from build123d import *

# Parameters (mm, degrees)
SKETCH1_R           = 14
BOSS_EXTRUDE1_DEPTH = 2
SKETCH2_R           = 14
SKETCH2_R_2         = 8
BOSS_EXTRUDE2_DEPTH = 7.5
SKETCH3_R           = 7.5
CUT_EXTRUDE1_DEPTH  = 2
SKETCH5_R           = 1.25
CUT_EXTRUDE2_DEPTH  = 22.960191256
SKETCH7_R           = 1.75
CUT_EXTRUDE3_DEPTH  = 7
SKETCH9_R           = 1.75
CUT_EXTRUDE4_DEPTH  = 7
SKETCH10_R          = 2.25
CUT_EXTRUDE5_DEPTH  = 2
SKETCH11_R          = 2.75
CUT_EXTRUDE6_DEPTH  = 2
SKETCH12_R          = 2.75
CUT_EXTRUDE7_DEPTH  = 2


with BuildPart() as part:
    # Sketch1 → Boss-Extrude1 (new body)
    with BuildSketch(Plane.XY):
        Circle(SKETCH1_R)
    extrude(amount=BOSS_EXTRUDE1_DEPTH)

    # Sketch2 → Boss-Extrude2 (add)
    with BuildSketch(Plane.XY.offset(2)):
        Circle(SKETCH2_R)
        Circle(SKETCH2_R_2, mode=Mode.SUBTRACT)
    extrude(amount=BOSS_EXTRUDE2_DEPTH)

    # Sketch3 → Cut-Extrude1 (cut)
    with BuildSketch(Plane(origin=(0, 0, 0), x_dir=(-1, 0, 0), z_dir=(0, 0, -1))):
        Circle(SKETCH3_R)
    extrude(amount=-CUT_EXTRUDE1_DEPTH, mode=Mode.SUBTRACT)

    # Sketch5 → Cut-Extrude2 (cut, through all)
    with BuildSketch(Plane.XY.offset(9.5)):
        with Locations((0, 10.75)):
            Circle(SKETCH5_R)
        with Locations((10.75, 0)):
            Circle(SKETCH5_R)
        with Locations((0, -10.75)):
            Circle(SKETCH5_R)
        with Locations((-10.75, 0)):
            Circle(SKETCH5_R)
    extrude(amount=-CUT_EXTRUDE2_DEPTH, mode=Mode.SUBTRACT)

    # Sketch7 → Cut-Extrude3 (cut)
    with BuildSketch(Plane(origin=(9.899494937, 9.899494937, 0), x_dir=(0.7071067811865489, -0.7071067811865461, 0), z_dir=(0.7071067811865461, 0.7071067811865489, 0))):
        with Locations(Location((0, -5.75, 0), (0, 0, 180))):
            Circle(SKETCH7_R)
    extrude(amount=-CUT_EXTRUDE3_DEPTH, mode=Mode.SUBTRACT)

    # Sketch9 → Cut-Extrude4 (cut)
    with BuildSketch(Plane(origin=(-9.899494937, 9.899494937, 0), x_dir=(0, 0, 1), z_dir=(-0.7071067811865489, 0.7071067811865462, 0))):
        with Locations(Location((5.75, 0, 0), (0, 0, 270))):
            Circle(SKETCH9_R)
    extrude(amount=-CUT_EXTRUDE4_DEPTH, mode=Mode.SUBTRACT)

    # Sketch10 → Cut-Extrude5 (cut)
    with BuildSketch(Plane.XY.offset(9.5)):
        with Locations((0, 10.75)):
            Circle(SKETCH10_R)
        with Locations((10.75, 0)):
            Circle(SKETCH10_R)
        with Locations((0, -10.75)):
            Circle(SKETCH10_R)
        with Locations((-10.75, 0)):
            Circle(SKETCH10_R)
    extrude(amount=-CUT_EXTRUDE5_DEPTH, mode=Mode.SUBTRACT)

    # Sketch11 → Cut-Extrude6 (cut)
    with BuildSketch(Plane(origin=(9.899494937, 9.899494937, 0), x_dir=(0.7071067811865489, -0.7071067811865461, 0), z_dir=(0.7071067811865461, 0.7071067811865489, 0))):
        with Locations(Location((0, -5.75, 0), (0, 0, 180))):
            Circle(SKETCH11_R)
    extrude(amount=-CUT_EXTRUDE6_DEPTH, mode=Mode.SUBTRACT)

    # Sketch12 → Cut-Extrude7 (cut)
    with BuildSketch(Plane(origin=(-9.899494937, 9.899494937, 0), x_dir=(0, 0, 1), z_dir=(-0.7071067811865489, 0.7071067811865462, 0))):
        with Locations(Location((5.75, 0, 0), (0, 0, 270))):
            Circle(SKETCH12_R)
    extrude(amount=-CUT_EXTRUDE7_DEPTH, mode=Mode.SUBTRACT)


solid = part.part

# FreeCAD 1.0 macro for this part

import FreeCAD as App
import Part
import Sketcher

V = App.Vector

doc = App.newDocument("Part")
params = doc.addObject("Spreadsheet::Sheet", "Params")
for row, (alias, value) in enumerate([
    ("sketch1_diameter", "28 mm"),
    ("pad1_length", "2 mm"),
    ("sketch2_diameter", "28 mm"),
    ("sketch2_diameter2", "16 mm"),
    ("pad2_length", "7.5 mm"),
    ("sketch3_diameter", "15 mm"),
    ("pocket1_length", "2 mm"),
    ("sketch4_diameter", "2.5 mm"),
    ("sketch5_diameter", "3.5 mm"),
    ("pocket3_length", "7 mm"),
    ("sketch6_diameter", "3.5 mm"),
    ("pocket4_length", "7 mm"),
    ("sketch7_diameter", "4.5 mm"),
    ("pocket5_length", "2 mm"),
    ("sketch8_diameter", "5.5 mm"),
    ("pocket6_length", "2 mm"),
    ("sketch9_diameter", "5.5 mm"),
    ("pocket7_length", "2 mm"),
], start=1):
    params.set(f"A{row}", alias)
    params.set(f"B{row}", "=" + value)
    params.setAlias(f"B{row}", alias)

body = doc.addObject("PartDesign::Body", "Body")

# Sketch on XY plane
sketch1 = body.newObject("Sketcher::SketchObject", "Sketch")
sketch1.AttachmentSupport = (doc.getObject("XY_Plane"), [""])
sketch1.MapMode = "FlatFace"
sketch1.addGeometry(Part.Circle(V(0, 0, 0), V(0, 0, 1), 14), False)
sketch1.addConstraint([
    Sketcher.Constraint("Coincident", 0, 3, -1, 1),
    Sketcher.Constraint("Diameter", 0, 28.0),
])
sketch1.setExpression("Constraints[1]", "Params.sketch1_diameter")
pad1 = body.newObject("PartDesign::Pad", "Pad")
pad1.Profile = sketch1
pad1.setExpression("Length", "Params.pad1_length")

# Sketch on XY plane
sketch2 = body.newObject("Sketcher::SketchObject", "Sketch001")
sketch2.AttachmentSupport = (doc.getObject("XY_Plane"), [""])
sketch2.MapMode = "FlatFace"
sketch2.AttachmentOffset = App.Placement(V(0, 0, 2), App.Rotation())
sketch2.addGeometry([
    Part.Circle(V(0, 0, 0), V(0, 0, 1), 14),
    Part.Circle(V(0, 0, 0), V(0, 0, 1), 8),
], False)
sketch2.addConstraint([
    Sketcher.Constraint("Coincident", 0, 3, -1, 1),
    Sketcher.Constraint("Coincident", 1, 3, -1, 1),
    Sketcher.Constraint("Diameter", 0, 28.0),
    Sketcher.Constraint("Diameter", 1, 16.0),
])
sketch2.setExpression("Constraints[2]", "Params.sketch2_diameter")
sketch2.setExpression("Constraints[3]", "Params.sketch2_diameter2")
pad2 = body.newObject("PartDesign::Pad", "Pad001")
pad2.Profile = sketch2
pad2.setExpression("Length", "Params.pad2_length")

# Sketch on XY plane
sketch3 = body.newObject("Sketcher::SketchObject", "Sketch002")
sketch3.AttachmentSupport = (doc.getObject("XY_Plane"), [""])
sketch3.MapMode = "FlatFace"
sketch3.addGeometry(Part.Circle(V(0, 0, 0), V(0, 0, 1), 8), False)
sketch3.addConstraint([
    Sketcher.Constraint("Coincident", 0, 3, -1, 1),
    Sketcher.Constraint("Diameter", 0, 15.0),
])
sketch3.setExpression("Constraints[1]", "Params.sketch3_diameter")
pocket1 = body.newObject("PartDesign::Pocket", "Pocket")
pocket1.Profile = sketch3
pocket1.setExpression("Length", "Params.pocket1_length")
pocket1.Reversed = True

# Sketch on XY plane
sketch4 = body.newObject("Sketcher::SketchObject", "Sketch003")
sketch4.AttachmentSupport = (doc.getObject("XY_Plane"), [""])
sketch4.MapMode = "FlatFace"
sketch4.AttachmentOffset = App.Placement(V(0, 0, 9.5), App.Rotation())
sketch4.addGeometry([
    Part.Circle(V(0, 10.8, 0), V(0, 0, 1), 1.2),
    Part.Circle(V(10.8, 0, 0), V(0, 0, 1), 1.2),
    Part.Circle(V(0, -10.8, 0), V(0, 0, 1), 1.2),
    Part.Circle(V(-10.8, 0, 0), V(0, 0, 1), 1.2),
], False)
sketch4.addConstraint([
    Sketcher.Constraint("Equal", 0, 1),
    Sketcher.Constraint("Equal", 1, 2),
    Sketcher.Constraint("Equal", 2, 3),
    Sketcher.Constraint("Symmetric", 0, 3, 2, 3, -1, 1),
    Sketcher.Constraint("Symmetric", 1, 3, 3, 3, -1, 1),
    Sketcher.Constraint("PointOnObject", 0, 3, -2),
    Sketcher.Constraint("PointOnObject", 1, 3, -1),
    Sketcher.Constraint("Diameter", 0, 2.5),
    Sketcher.Constraint("DistanceY", 2, 3, 0, 3, 21.5),
    Sketcher.Constraint("DistanceX", 3, 3, 1, 3, 21.5),
])
sketch4.setExpression("Constraints[7]", "Params.sketch4_diameter")
pocket2 = body.newObject("PartDesign::Pocket", "Pocket001")
pocket2.Profile = sketch4
pocket2.Type = "ThroughAll"

# Sketch on an angled plane
sketch5 = body.newObject("Sketcher::SketchObject", "Sketch004")
sketch5.Placement = App.Placement(V(9.899495, 9.899495, 0), App.Rotation(V(0.707106781, -0.707106781, 0), V(0, 0, -0.999999999), V(0.707106781, 0.707106781, 0), "ZXY"))
sketch5.addGeometry(Part.Circle(V(0, -5.7, 0), V(0, 0, 1), 1.8), False)
sketch5.addConstraint([
    Sketcher.Constraint("PointOnObject", 0, 3, -2),
    Sketcher.Constraint("Diameter", 0, 3.5),
    Sketcher.Constraint("DistanceY", 0, 3, -1, 1, 5.75),
])
sketch5.setExpression("Constraints[1]", "Params.sketch5_diameter")
pocket3 = body.newObject("PartDesign::Pocket", "Pocket002")
pocket3.Profile = sketch5
pocket3.setExpression("Length", "Params.pocket3_length")

# Sketch on an angled plane
sketch6 = body.newObject("Sketcher::SketchObject", "Sketch005")
sketch6.Placement = App.Placement(V(-9.899495, 9.899495, 0), App.Rotation(V(0, 0, 1), V(0.707106781, 0.707106781, 0), V(-0.707106781, 0.707106781, 0), "ZXY"))
sketch6.addGeometry(Part.Circle(V(5.8, 0, 0), V(0, 0, 1), 1.8), False)
sketch6.addConstraint([
    Sketcher.Constraint("PointOnObject", 0, 3, -1),
    Sketcher.Constraint("Diameter", 0, 3.5),
    Sketcher.Constraint("DistanceX", -1, 1, 0, 3, 5.75),
])
sketch6.setExpression("Constraints[1]", "Params.sketch6_diameter")
pocket4 = body.newObject("PartDesign::Pocket", "Pocket003")
pocket4.Profile = sketch6
pocket4.setExpression("Length", "Params.pocket4_length")

# Sketch on XY plane
sketch7 = body.newObject("Sketcher::SketchObject", "Sketch006")
sketch7.AttachmentSupport = (doc.getObject("XY_Plane"), [""])
sketch7.MapMode = "FlatFace"
sketch7.AttachmentOffset = App.Placement(V(0, 0, 9.5), App.Rotation())
sketch7.addGeometry([
    Part.Circle(V(0, 10.8, 0), V(0, 0, 1), 2.2),
    Part.Circle(V(10.8, 0, 0), V(0, 0, 1), 2.2),
    Part.Circle(V(0, -10.8, 0), V(0, 0, 1), 2.2),
    Part.Circle(V(-10.8, 0, 0), V(0, 0, 1), 2.2),
], False)
sketch7.addConstraint([
    Sketcher.Constraint("Equal", 0, 1),
    Sketcher.Constraint("Equal", 1, 2),
    Sketcher.Constraint("Equal", 2, 3),
    Sketcher.Constraint("Symmetric", 0, 3, 2, 3, -1, 1),
    Sketcher.Constraint("Symmetric", 1, 3, 3, 3, -1, 1),
    Sketcher.Constraint("PointOnObject", 0, 3, -2),
    Sketcher.Constraint("PointOnObject", 1, 3, -1),
    Sketcher.Constraint("Diameter", 0, 4.5),
    Sketcher.Constraint("DistanceY", 2, 3, 0, 3, 21.5),
    Sketcher.Constraint("DistanceX", 3, 3, 1, 3, 21.5),
])
sketch7.setExpression("Constraints[7]", "Params.sketch7_diameter")
pocket5 = body.newObject("PartDesign::Pocket", "Pocket004")
pocket5.Profile = sketch7
pocket5.setExpression("Length", "Params.pocket5_length")

# Sketch on an angled plane
sketch8 = body.newObject("Sketcher::SketchObject", "Sketch007")
sketch8.Placement = App.Placement(V(9.899495, 9.899495, 0), App.Rotation(V(0.707106781, -0.707106781, 0), V(0, 0, -0.999999999), V(0.707106781, 0.707106781, 0), "ZXY"))
sketch8.addGeometry(Part.Circle(V(0, -5.7, 0), V(0, 0, 1), 2.8), False)
sketch8.addConstraint([
    Sketcher.Constraint("PointOnObject", 0, 3, -2),
    Sketcher.Constraint("Diameter", 0, 5.5),
    Sketcher.Constraint("DistanceY", 0, 3, -1, 1, 5.75),
])
sketch8.setExpression("Constraints[1]", "Params.sketch8_diameter")
pocket6 = body.newObject("PartDesign::Pocket", "Pocket005")
pocket6.Profile = sketch8
pocket6.setExpression("Length", "Params.pocket6_length")

# Sketch on an angled plane
sketch9 = body.newObject("Sketcher::SketchObject", "Sketch008")
sketch9.Placement = App.Placement(V(-9.899495, 9.899495, 0), App.Rotation(V(0, 0, 1), V(0.707106781, 0.707106781, 0), V(-0.707106781, 0.707106781, 0), "ZXY"))
sketch9.addGeometry(Part.Circle(V(5.8, 0, 0), V(0, 0, 1), 2.8), False)
sketch9.addConstraint([
    Sketcher.Constraint("PointOnObject", 0, 3, -1),
    Sketcher.Constraint("Diameter", 0, 5.5),
    Sketcher.Constraint("DistanceX", -1, 1, 0, 3, 5.75),
])
sketch9.setExpression("Constraints[1]", "Params.sketch9_diameter")
pocket7 = body.newObject("PartDesign::Pocket", "Pocket006")
pocket7.Profile = sketch9
pocket7.setExpression("Length", "Params.pocket7_length")

doc.recompute()
